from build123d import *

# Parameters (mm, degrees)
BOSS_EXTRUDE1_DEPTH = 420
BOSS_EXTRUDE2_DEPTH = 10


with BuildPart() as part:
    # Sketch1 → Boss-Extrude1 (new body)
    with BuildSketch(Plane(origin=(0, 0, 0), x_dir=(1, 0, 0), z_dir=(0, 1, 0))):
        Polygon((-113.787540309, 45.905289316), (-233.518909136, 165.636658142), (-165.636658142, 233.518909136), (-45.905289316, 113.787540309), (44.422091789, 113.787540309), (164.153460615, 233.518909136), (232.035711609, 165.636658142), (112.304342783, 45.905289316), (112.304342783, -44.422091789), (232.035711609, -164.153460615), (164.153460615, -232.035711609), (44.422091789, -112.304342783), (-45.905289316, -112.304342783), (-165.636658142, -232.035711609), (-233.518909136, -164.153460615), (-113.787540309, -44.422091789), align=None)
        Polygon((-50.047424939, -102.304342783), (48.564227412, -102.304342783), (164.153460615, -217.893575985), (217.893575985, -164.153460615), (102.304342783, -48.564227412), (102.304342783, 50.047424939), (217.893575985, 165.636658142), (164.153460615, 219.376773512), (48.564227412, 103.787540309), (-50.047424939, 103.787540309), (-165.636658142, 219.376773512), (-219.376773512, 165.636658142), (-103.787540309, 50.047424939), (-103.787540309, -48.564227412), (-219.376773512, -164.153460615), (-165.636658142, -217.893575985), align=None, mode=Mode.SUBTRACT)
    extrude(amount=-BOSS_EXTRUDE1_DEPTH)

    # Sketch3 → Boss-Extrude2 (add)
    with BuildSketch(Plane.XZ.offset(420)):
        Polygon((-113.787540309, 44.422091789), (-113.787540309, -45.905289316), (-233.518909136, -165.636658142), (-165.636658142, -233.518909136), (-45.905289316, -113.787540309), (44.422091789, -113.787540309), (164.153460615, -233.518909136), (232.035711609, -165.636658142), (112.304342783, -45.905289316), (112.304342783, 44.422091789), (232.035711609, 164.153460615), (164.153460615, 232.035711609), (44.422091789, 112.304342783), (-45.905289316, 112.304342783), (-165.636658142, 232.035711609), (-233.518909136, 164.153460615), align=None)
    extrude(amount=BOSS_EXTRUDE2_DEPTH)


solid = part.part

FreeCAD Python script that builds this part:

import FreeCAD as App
import Part
import Sketcher
from FreeCAD import Vector
Q = App.Units.Quantity

doc = App.newDocument("Part")
body = doc.addObject("PartDesign::Body", "Body")

# Sketch on XZ plane
sketch1 = body.newObject("Sketcher::SketchObject", "Sketch")
sketch1.AttachmentSupport = (doc.getObject("XZ_Plane"), [""])
sketch1.MapMode = "FlatFace"
sketch1.addGeometry(Part.LineSegment(Vector(-234, -166, 0), Vector(-114, -46, 0)), False)
sketch1.addGeometry(Part.LineSegment(Vector(-114, -46, 0), Vector(-114, 44, 0)), False)
sketch1.addGeometry(Part.LineSegment(Vector(-114, 44, 0), Vector(-234, 164, 0)), False)
sketch1.addGeometry(Part.LineSegment(Vector(-234, 164, 0), Vector(-166, 232, 0)), False)
sketch1.addGeometry(Part.LineSegment(Vector(-166, 232, 0), Vector(-46, 112, 0)), False)
sketch1.addGeometry(Part.LineSegment(Vector(-46, 112, 0), Vector(44, 112, 0)), False)
sketch1.addGeometry(Part.LineSegment(Vector(44, 112, 0), Vector(164, 232, 0)), False)
sketch1.addGeometry(Part.LineSegment(Vector(164, 232, 0), Vector(232, 164, 0)), False)
sketch1.addGeometry(Part.LineSegment(Vector(232, 164, 0), Vector(112, 44, 0)), False)
sketch1.addGeometry(Part.LineSegment(Vector(112, 44, 0), Vector(112, -46, 0)), False)
sketch1.addGeometry(Part.LineSegment(Vector(112, -46, 0), Vector(232, -166, 0)), False)
sketch1.addGeometry(Part.LineSegment(Vector(232, -166, 0), Vector(164, -234, 0)), False)
sketch1.addGeometry(Part.LineSegment(Vector(164, -234, 0), Vector(44, -114, 0)), False)
sketch1.addGeometry(Part.LineSegment(Vector(44, -114, 0), Vector(-46, -114, 0)), False)
sketch1.addGeometry(Part.LineSegment(Vector(-46, -114, 0), Vector(-166, -234, 0)), False)
sketch1.addGeometry(Part.LineSegment(Vector(-166, -234, 0), Vector(-234, -166, 0)), False)
sketch1.addGeometry(Part.LineSegment(Vector(-50, 102, 0), Vector(-166, 218, 0)), False)
sketch1.addGeometry(Part.LineSegment(Vector(-166, 218, 0), Vector(-219, 164, 0)), False)
sketch1.addGeometry(Part.LineSegment(Vector(-219, 164, 0), Vector(-104, 49, 0)), False)
sketch1.addGeometry(Part.LineSegment(Vector(-104, 49, 0), Vector(-104, -50, 0)), False)
sketch1.addGeometry(Part.LineSegment(Vector(-104, -50, 0), Vector(-219, -166, 0)), False)
sketch1.addGeometry(Part.LineSegment(Vector(-219, -166, 0), Vector(-166, -219, 0)), False)
sketch1.addGeometry(Part.LineSegment(Vector(-166, -219, 0), Vector(-50, -104, 0)), False)
sketch1.addGeometry(Part.LineSegment(Vector(-50, -104, 0), Vector(49, -104, 0)), False)
sketch1.addGeometry(Part.LineSegment(Vector(49, -104, 0), Vector(164, -219, 0)), False)
sketch1.addGeometry(Part.LineSegment(Vector(164, -219, 0), Vector(218, -166, 0)), False)
sketch1.addGeometry(Part.LineSegment(Vector(218, -166, 0), Vector(102, -50, 0)), False)
sketch1.addGeometry(Part.LineSegment(Vector(102, -50, 0), Vector(102, 49, 0)), False)
sketch1.addGeometry(Part.LineSegment(Vector(102, 49, 0), Vector(218, 164, 0)), False)
sketch1.addGeometry(Part.LineSegment(Vector(218, 164, 0), Vector(164, 218, 0)), False)
sketch1.addGeometry(Part.LineSegment(Vector(164, 218, 0), Vector(49, 102, 0)), False)
sketch1.addGeometry(Part.LineSegment(Vector(49, 102, 0), Vector(-50, 102, 0)), False)
sketch1.addConstraint(Sketcher.Constraint("Coincident", 0, 2, 1, 1))
sketch1.addConstraint(Sketcher.Constraint("Coincident", 1, 2, 2, 1))
sketch1.addConstraint(Sketcher.Constraint("Coincident", 2, 2, 3, 1))
sketch1.addConstraint(Sketcher.Constraint("Coincident", 3, 2, 4, 1))
sketch1.addConstraint(Sketcher.Constraint("Coincident", 4, 2, 5, 1))
sketch1.addConstraint(Sketcher.Constraint("Coincident", 5, 2, 6, 1))
sketch1.addConstraint(Sketcher.Constraint("Coincident", 6, 2, 7, 1))
sketch1.addConstraint(Sketcher.Constraint("Coincident", 7, 2, 8, 1))
sketch1.addConstraint(Sketcher.Constraint("Coincident", 8, 2, 9, 1))
sketch1.addConstraint(Sketcher.Constraint("Coincident", 9, 2, 10, 1))
sketch1.addConstraint(Sketcher.Constraint("Coincident", 10, 2, 11, 1))
sketch1.addConstraint(Sketcher.Constraint("Coincident", 11, 2, 12, 1))
sketch1.addConstraint(Sketcher.Constraint("Coincident", 12, 2, 13, 1))
sketch1.addConstraint(Sketcher.Constraint("Coincident", 13, 2, 14, 1))
sketch1.addConstraint(Sketcher.Constraint("Coincident", 14, 2, 15, 1))
sketch1.addConstraint(Sketcher.Constraint("Coincident", 15, 2, 0, 1))
sketch1.addConstraint(Sketcher.Constraint("Coincident", 16, 2, 17, 1))
sketch1.addConstraint(Sketcher.Constraint("Coincident", 17, 2, 18, 1))
sketch1.addConstraint(Sketcher.Constraint("Coincident", 18, 2, 19, 1))
sketch1.addConstraint(Sketcher.Constraint("Coincident", 19, 2, 20, 1))
sketch1.addConstraint(Sketcher.Constraint("Coincident", 20, 2, 21, 1))
sketch1.addConstraint(Sketcher.Constraint("Coincident", 21, 2, 22, 1))
sketch1.addConstraint(Sketcher.Constraint("Coincident", 22, 2, 23, 1))
sketch1.addConstraint(Sketcher.Constraint("Coincident", 23, 2, 24, 1))
sketch1.addConstraint(Sketcher.Constraint("Coincident", 24, 2, 25, 1))
sketch1.addConstraint(Sketcher.Constraint("Coincident", 25, 2, 26, 1))
sketch1.addConstraint(Sketcher.Constraint("Coincident", 26, 2, 27, 1))
sketch1.addConstraint(Sketcher.Constraint("Coincident", 27, 2, 28, 1))
sketch1.addConstraint(Sketcher.Constraint("Coincident", 28, 2, 29, 1))
sketch1.addConstraint(Sketcher.Constraint("Coincident", 29, 2, 30, 1))
sketch1.addConstraint(Sketcher.Constraint("Coincident", 30, 2, 31, 1))
sketch1.addConstraint(Sketcher.Constraint("Coincident", 31, 2, 16, 1))
sketch1.addConstraint(Sketcher.Constraint("Vertical", 1))
sketch1.addConstraint(Sketcher.Constraint("Horizontal", 5))
sketch1.addConstraint(Sketcher.Constraint("Vertical", 9))
sketch1.addConstraint(Sketcher.Constraint("Horizontal", 13))
sketch1.addConstraint(Sketcher.Constraint("Vertical", 19))
sketch1.addConstraint(Sketcher.Constraint("Horizontal", 23))
sketch1.addConstraint(Sketcher.Constraint("Vertical", 27))
sketch1.addConstraint(Sketcher.Constraint("Horizontal", 31))
sketch1.addConstraint(Sketcher.Constraint("Perpendicular", 0, 2))
sketch1.addConstraint(Sketcher.Constraint("Perpendicular", 2, 3))
sketch1.addConstraint(Sketcher.Constraint("Perpendicular", 3, 4))
sketch1.addConstraint(Sketcher.Constraint("Perpendicular", 4, 6))
sketch1.addConstraint(Sketcher.Constraint("Perpendicular", 6, 7))
sketch1.addConstraint(Sketcher.Constraint("Perpendicular", 7, 8))
sketch1.addConstraint(Sketcher.Constraint("Perpendicular", 8, 10))
sketch1.addConstraint(Sketcher.Constraint("Perpendicular", 10, 11))
sketch1.addConstraint(Sketcher.Constraint("Perpendicular", 11, 12))
sketch1.addConstraint(Sketcher.Constraint("Perpendicular", 12, 14))
sketch1.addConstraint(Sketcher.Constraint("Perpendicular", 14, 15))
sketch1.addConstraint(Sketcher.Constraint("Parallel", 15, 16))
sketch1.addConstraint(Sketcher.Constraint("Perpendicular", 16, 17))
sketch1.addConstraint(Sketcher.Constraint("Perpendicular", 17, 18))
sketch1.addConstraint(Sketcher.Constraint("Perpendicular", 18, 20))
sketch1.addConstraint(Sketcher.Constraint("Perpendicular", 20, 21))
sketch1.addConstraint(Sketcher.Constraint("Perpendicular", 21, 22))
sketch1.addConstraint(Sketcher.Constraint("Perpendicular", 22, 24))
sketch1.addConstraint(Sketcher.Constraint("Perpendicular", 24, 25))
sketch1.addConstraint(Sketcher.Constraint("Perpendicular", 25, 26))
sketch1.addConstraint(Sketcher.Constraint("Perpendicular", 26, 28))
sketch1.addConstraint(Sketcher.Constraint("Perpendicular", 28, 29))
sketch1.addConstraint(Sketcher.Constraint("Perpendicular", 29, 30))
sketch1.addConstraint(Sketcher.Constraint("Horizontal", 3, 2, 6, 2))
sketch1.addConstraint(Sketcher.Constraint("Horizontal", 2, 2, 7, 2))
sketch1.addConstraint(Sketcher.Constraint("Horizontal", 1, 2, 8, 2))
sketch1.addConstraint(Sketcher.Constraint("Horizontal", 0, 2, 9, 2))
sketch1.addConstraint(Sketcher.Constraint("Horizontal", 11, 2, 14, 2))
sketch1.addConstraint(Sketcher.Constraint("Horizontal", 10, 2, 15, 2))
sketch1.addConstraint(Sketcher.Constraint("Horizontal", 7, 2, 17, 2))
sketch1.addConstraint(Sketcher.Constraint("Horizontal", 15, 2, 20, 2))
sketch1.addConstraint(Sketcher.Constraint("Horizontal", 21, 2, 24, 2))
sketch1.addConstraint(Sketcher.Constraint("Horizontal", 20, 2, 25, 2))
sketch1.addConstraint(Sketcher.Constraint("Horizontal", 19, 2, 26, 2))
sketch1.addConstraint(Sketcher.Constraint("Horizontal", 18, 2, 27, 2))
sketch1.addConstraint(Sketcher.Constraint("Horizontal", 17, 2, 28, 2))
sketch1.addConstraint(Sketcher.Constraint("Horizontal", 16, 2, 29, 2))
sketch1.addConstraint(Sketcher.Constraint("Vertical", 7, 2, 10, 2))
sketch1.addConstraint(Sketcher.Constraint("Vertical", 6, 2, 11, 2))
sketch1.addConstraint(Sketcher.Constraint("Vertical", 5, 2, 12, 2))
sketch1.addConstraint(Sketcher.Constraint("Vertical", 4, 2, 13, 2))
sketch1.addConstraint(Sketcher.Constraint("Vertical", 14, 2, 16, 2))
sketch1.addConstraint(Sketcher.Constraint("Vertical", 17, 2, 20, 2))
sketch1.addConstraint(Sketcher.Constraint("Vertical", 16, 2, 21, 2))
sketch1.addConstraint(Sketcher.Constraint("Vertical", 11, 2, 24, 2))
sketch1.addConstraint(Sketcher.Constraint("Vertical", 23, 2, 30, 2))
sketch1.addConstraint(Sketcher.Constraint("Equal", 13, 1))
sketch1.addConstraint(Sketcher.Constraint("Equal", 31, 19))
sketch1.addConstraint(Sketcher.Constraint("Equal", 2, 4))
sketch1.addConstraint(Sketcher.Constraint("Distance", 3, Q("96 mm")))
sketch1.addConstraint(Sketcher.Constraint("Distance", 17, Q("76 mm")))
sketch1.addConstraint(Sketcher.Constraint("DistanceX", 1, 2, 18, 2, Q("10 mm")))
sketch1.addConstraint(Sketcher.Constraint("DistanceY", 0, 2, 3, 2, Q("277.941001 mm")))
sketch1.addConstraint(Sketcher.Constraint("DistanceX", 5, 1, 5, 2, Q("90.327381 mm")))
sketch1.addConstraint(Sketcher.Constraint("DistanceX", 0, 2, -1, 1, Q("113.78754 mm")))
sketch1.addConstraint(Sketcher.Constraint("DistanceY", 0, 2, -1, 1, Q("45.905289 mm")))
pad1 = body.newObject("PartDesign::Pad", "Pad")
pad1.Profile = sketch1
pad1.Length = 420

# Sketch on XZ plane
sketch2 = body.newObject("Sketcher::SketchObject", "Sketch001")
sketch2.AttachmentSupport = (doc.getObject("XZ_Plane"), [""])
sketch2.MapMode = "FlatFace"
sketch2.AttachmentOffset = App.Placement(Vector(0, 0, 420), App.Rotation())
sketch2.addGeometry(Part.LineSegment(Vector(-114, 44, 0), Vector(-114, -46, 0)), False)
sketch2.addGeometry(Part.LineSegment(Vector(-114, -46, 0), Vector(-234, -166, 0)), False)
sketch2.addGeometry(Part.LineSegment(Vector(-234, -166, 0), Vector(-166, -234, 0)), False)
sketch2.addGeometry(Part.LineSegment(Vector(-166, -234, 0), Vector(-46, -114, 0)), False)
sketch2.addGeometry(Part.LineSegment(Vector(-46, -114, 0), Vector(44, -114, 0)), False)
sketch2.addGeometry(Part.LineSegment(Vector(44, -114, 0), Vector(164, -234, 0)), False)
sketch2.addGeometry(Part.LineSegment(Vector(164, -234, 0), Vector(232, -166, 0)), False)
sketch2.addGeometry(Part.LineSegment(Vector(232, -166, 0), Vector(112, -46, 0)), False)
sketch2.addGeometry(Part.LineSegment(Vector(112, -46, 0), Vector(112, 44, 0)), False)
sketch2.addGeometry(Part.LineSegment(Vector(112, 44, 0), Vector(232, 164, 0)), False)
sketch2.addGeometry(Part.LineSegment(Vector(232, 164, 0), Vector(164, 232, 0)), False)
sketch2.addGeometry(Part.LineSegment(Vector(164, 232, 0), Vector(44, 112, 0)), False)
sketch2.addGeometry(Part.LineSegment(Vector(44, 112, 0), Vector(-46, 112, 0)), False)
sketch2.addGeometry(Part.LineSegment(Vector(-46, 112, 0), Vector(-166, 232, 0)), False)
sketch2.addGeometry(Part.LineSegment(Vector(-166, 232, 0), Vector(-234, 164, 0)), False)
sketch2.addGeometry(Part.LineSegment(Vector(-234, 164, 0), Vector(-114, 44, 0)), False)
sketch2.addConstraint(Sketcher.Constraint("Coincident", 0, 2, 1, 1))
sketch2.addConstraint(Sketcher.Constraint("Coincident", 1, 2, 2, 1))
sketch2.addConstraint(Sketcher.Constraint("Coincident", 2, 2, 3, 1))
sketch2.addConstraint(Sketcher.Constraint("Coincident", 3, 2, 4, 1))
sketch2.addConstraint(Sketcher.Constraint("Coincident", 4, 2, 5, 1))
sketch2.addConstraint(Sketcher.Constraint("Coincident", 5, 2, 6, 1))
sketch2.addConstraint(Sketcher.Constraint("Coincident", 6, 2, 7, 1))
sketch2.addConstraint(Sketcher.Constraint("Coincident", 7, 2, 8, 1))
sketch2.addConstraint(Sketcher.Constraint("Coincident", 8, 2, 9, 1))
sketch2.addConstraint(Sketcher.Constraint("Coincident", 9, 2, 10, 1))
sketch2.addConstraint(Sketcher.Constraint("Coincident", 10, 2, 11, 1))
sketch2.addConstraint(Sketcher.Constraint("Coincident", 11, 2, 12, 1))
sketch2.addConstraint(Sketcher.Constraint("Coincident", 12, 2, 13, 1))
sketch2.addConstraint(Sketcher.Constraint("Coincident", 13, 2, 14, 1))
sketch2.addConstraint(Sketcher.Constraint("Coincident", 14, 2, 15, 1))
sketch2.addConstraint(Sketcher.Constraint("Coincident", 15, 2, 0, 1))
sketch2.addConstraint(Sketcher.Constraint("Vertical", 0))
sketch2.addConstraint(Sketcher.Constraint("Horizontal", 4))
sketch2.addConstraint(Sketcher.Constraint("Vertical", 8))
sketch2.addConstraint(Sketcher.Constraint("Horizontal", 12))
sketch2.addConstraint(Sketcher.Constraint("Perpendicular", 1, 2))
sketch2.addConstraint(Sketcher.Constraint("Perpendicular", 2, 3))
sketch2.addConstraint(Sketcher.Constraint("Perpendicular", 3, 5))
sketch2.addConstraint(Sketcher.Constraint("Perpendicular", 5, 6))
sketch2.addConstraint(Sketcher.Constraint("Perpendicular", 6, 7))
sketch2.addConstraint(Sketcher.Constraint("Perpendicular", 7, 9))
sketch2.addConstraint(Sketcher.Constraint("Perpendicular", 9, 10))
sketch2.addConstraint(Sketcher.Constraint("Perpendicular", 10, 11))
sketch2.addConstraint(Sketcher.Constraint("Perpendicular", 11, 13))
sketch2.addConstraint(Sketcher.Constraint("Perpendicular", 13, 14))
sketch2.addConstraint(Sketcher.Constraint("Perpendicular", 14, 15))
sketch2.addConstraint(Sketcher.Constraint("Horizontal", 2, 2, 5, 2))
sketch2.addConstraint(Sketcher.Constraint("Horizontal", 1, 2, 6, 2))
sketch2.addConstraint(Sketcher.Constraint("Horizontal", 0, 2, 7, 2))
sketch2.addConstraint(Sketcher.Constraint("Horizontal", 10, 2, 13, 2))
sketch2.addConstraint(Sketcher.Constraint("Horizontal", 9, 2, 14, 2))
sketch2.addConstraint(Sketcher.Constraint("Horizontal", 8, 2, 15, 2))
sketch2.addConstraint(Sketcher.Constraint("Vertical", 6, 2, 9, 2))
sketch2.addConstraint(Sketcher.Constraint("Vertical", 5, 2, 10, 2))
sketch2.addConstraint(Sketcher.Constraint("Vertical", 4, 2, 11, 2))
sketch2.addConstraint(Sketcher.Constraint("Vertical", 3, 2, 12, 2))
sketch2.addConstraint(Sketcher.Constraint("Equal", 12, 0))
sketch2.addConstraint(Sketcher.Constraint("Equal", 1, 3))
sketch2.addConstraint(Sketcher.Constraint("Distance", 2, Q("96 mm")))
sketch2.addConstraint(Sketcher.Constraint("DistanceX", 1, 2, 4, 2, Q("277.941001 mm")))
sketch2.addConstraint(Sketcher.Constraint("DistanceX", 4, 1, 4, 2, Q("90.327381 mm")))
sketch2.addConstraint(Sketcher.Constraint("DistanceX", 0, 2, -1, 1, Q("113.78754 mm")))
sketch2.addConstraint(Sketcher.Constraint("DistanceY", 0, 2, -1, 1, Q("45.905289 mm")))
pad2 = body.newObject("PartDesign::Pad", "Pad001")
pad2.Profile = sketch2
pad2.Length = 10

doc.recompute()
